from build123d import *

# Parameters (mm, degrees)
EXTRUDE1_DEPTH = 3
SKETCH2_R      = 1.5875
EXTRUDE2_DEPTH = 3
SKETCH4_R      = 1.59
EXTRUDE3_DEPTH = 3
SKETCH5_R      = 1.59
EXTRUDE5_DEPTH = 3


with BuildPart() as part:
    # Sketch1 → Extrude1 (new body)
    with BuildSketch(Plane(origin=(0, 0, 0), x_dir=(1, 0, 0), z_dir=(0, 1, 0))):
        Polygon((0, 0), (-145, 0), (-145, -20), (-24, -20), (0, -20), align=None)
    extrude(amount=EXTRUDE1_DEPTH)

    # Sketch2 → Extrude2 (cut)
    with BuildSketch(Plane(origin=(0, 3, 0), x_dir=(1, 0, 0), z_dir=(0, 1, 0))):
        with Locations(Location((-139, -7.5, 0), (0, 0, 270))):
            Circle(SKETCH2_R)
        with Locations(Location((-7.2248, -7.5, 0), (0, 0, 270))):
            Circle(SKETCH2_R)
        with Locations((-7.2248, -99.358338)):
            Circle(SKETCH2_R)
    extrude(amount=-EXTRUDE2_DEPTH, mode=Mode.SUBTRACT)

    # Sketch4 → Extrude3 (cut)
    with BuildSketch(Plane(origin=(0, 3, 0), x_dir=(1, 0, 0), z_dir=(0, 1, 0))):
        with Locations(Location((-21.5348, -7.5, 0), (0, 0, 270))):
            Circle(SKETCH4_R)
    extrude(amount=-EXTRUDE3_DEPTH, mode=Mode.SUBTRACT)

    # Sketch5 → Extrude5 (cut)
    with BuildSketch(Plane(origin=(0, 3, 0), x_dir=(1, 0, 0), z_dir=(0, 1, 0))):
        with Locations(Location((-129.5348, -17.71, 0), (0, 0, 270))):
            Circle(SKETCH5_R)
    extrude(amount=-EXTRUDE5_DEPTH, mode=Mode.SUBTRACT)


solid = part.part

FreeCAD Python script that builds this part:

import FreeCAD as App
import Part
import Sketcher
from FreeCAD import Vector


def add_polygon(sketch, points):
    """Adds a closed chain of lines whose ends are joined by coincident constraints."""
    first, n = sketch.GeometryCount, len(points)
    for a, b in zip(points, points[1:] + points[:1]):
        sketch.addGeometry(Part.LineSegment(App.Vector(*a, 0), App.Vector(*b, 0)), False)
    for i in range(n):
        sketch.addConstraint(Sketcher.Constraint("Coincident", first + i, 2, first + (i + 1) % n, 1))

doc = App.newDocument("Part")
body = doc.addObject("PartDesign::Body", "Body")

sketch1 = body.newObject("Sketcher::SketchObject", "Sketch")
sketch1.AttachmentSupport = (doc.getObject("XZ_Plane"), [""])
sketch1.MapMode = "FlatFace"
add_polygon(sketch1, [(0, 0), (-145, 0), (-145, 20), (0, 20)])
sketch1.addConstraint(Sketcher.Constraint("Horizontal", 0))
sketch1.addConstraint(Sketcher.Constraint("Vertical", 1))
sketch1.addConstraint(Sketcher.Constraint("Horizontal", 2))
sketch1.addConstraint(Sketcher.Constraint("Vertical", 3))
sketch1.addConstraint(Sketcher.Constraint("Coincident", 3, 2, -1, 1))
sketch1.addConstraint(Sketcher.Constraint("DistanceX", 0, 2, 0, 1, 145.0))
sketch1.addConstraint(Sketcher.Constraint("DistanceY", 1, 1, 1, 2, 20.0))
pad1 = body.newObject("PartDesign::Pad", "Pad")
pad1.Profile = sketch1
pad1.Length = 3
pad1.Reversed = True

sketch2 = body.newObject("Sketcher::SketchObject", "Sketch001")
sketch2.AttachmentSupport = (doc.getObject("XZ_Plane"), [""])
sketch2.MapMode = "FlatFace"
sketch2.AttachmentOffset = App.Placement(Vector(0, 0, -3), App.Rotation())
sketch2.addGeometry(Part.Circle(Vector(-139, 7.5, 0), Vector(0, 0, 1), 1.5875), False)
sketch2.addGeometry(Part.Circle(Vector(-7.2248, 7.5, 0), Vector(0, 0, 1), 1.5875), False)
sketch2.addGeometry(Part.Circle(Vector(-7.2248, 99.358338, 0), Vector(0, 0, 1), 1.5875), False)
sketch2.addConstraint(Sketcher.Constraint("Equal", 0, 1))
sketch2.addConstraint(Sketcher.Constraint("Equal", 1, 2))
sketch2.addConstraint(Sketcher.Constraint("Horizontal", 0, 3, 1, 3))
sketch2.addConstraint(Sketcher.Constraint("Vertical", 1, 3, 2, 3))
sketch2.addConstraint(Sketcher.Constraint("Diameter", 0, 3.175))
sketch2.addConstraint(Sketcher.Constraint("DistanceX", 0, 3, -1, 1, 139.0))
sketch2.addConstraint(Sketcher.Constraint("DistanceY", -1, 1, 0, 3, 7.5))
sketch2.addConstraint(Sketcher.Constraint("DistanceX", 1, 3, -1, 1, 7.2248))
sketch2.addConstraint(Sketcher.Constraint("DistanceY", -1, 1, 2, 3, 99.358338))
pocket1 = body.newObject("PartDesign::Pocket", "Pocket")
pocket1.Profile = sketch2
pocket1.Length = 3
pocket1.Reversed = True

sketch3 = body.newObject("Sketcher::SketchObject", "Sketch002")
sketch3.AttachmentSupport = (doc.getObject("XZ_Plane"), [""])
sketch3.MapMode = "FlatFace"
sketch3.AttachmentOffset = App.Placement(Vector(0, 0, -3), App.Rotation())
sketch3.addGeometry(Part.Circle(Vector(-21.5348, 7.5, 0), Vector(0, 0, 1), 1.59), False)
sketch3.addConstraint(Sketcher.Constraint("Diameter", 0, 3.18))
sketch3.addConstraint(Sketcher.Constraint("DistanceY", -1, 1, 0, 3, 7.5))
sketch3.addConstraint(Sketcher.Constraint("DistanceX", 0, 3, -1, 1, 21.5348))
pocket2 = body.newObject("PartDesign::Pocket", "Pocket001")
pocket2.Profile = sketch3
pocket2.Length = 3
pocket2.Reversed = True

sketch4 = body.newObject("Sketcher::SketchObject", "Sketch003")
sketch4.AttachmentSupport = (doc.getObject("XZ_Plane"), [""])
sketch4.MapMode = "FlatFace"
sketch4.AttachmentOffset = App.Placement(Vector(0, 0, -3), App.Rotation())
sketch4.addGeometry(Part.Circle(Vector(-129.5348, 17.71, 0), Vector(0, 0, 1), 1.59), False)
sketch4.addConstraint(Sketcher.Constraint("Diameter", 0, 3.18))
sketch4.addConstraint(Sketcher.Constraint("DistanceY", -1, 1, 0, 3, 17.71))
sketch4.addConstraint(Sketcher.Constraint("DistanceX", 0, 3, -1, 1, 129.5348))
pocket3 = body.newObject("PartDesign::Pocket", "Pocket002")
pocket3.Profile = sketch4
pocket3.Length = 3
pocket3.Reversed = True

doc.recompute()
